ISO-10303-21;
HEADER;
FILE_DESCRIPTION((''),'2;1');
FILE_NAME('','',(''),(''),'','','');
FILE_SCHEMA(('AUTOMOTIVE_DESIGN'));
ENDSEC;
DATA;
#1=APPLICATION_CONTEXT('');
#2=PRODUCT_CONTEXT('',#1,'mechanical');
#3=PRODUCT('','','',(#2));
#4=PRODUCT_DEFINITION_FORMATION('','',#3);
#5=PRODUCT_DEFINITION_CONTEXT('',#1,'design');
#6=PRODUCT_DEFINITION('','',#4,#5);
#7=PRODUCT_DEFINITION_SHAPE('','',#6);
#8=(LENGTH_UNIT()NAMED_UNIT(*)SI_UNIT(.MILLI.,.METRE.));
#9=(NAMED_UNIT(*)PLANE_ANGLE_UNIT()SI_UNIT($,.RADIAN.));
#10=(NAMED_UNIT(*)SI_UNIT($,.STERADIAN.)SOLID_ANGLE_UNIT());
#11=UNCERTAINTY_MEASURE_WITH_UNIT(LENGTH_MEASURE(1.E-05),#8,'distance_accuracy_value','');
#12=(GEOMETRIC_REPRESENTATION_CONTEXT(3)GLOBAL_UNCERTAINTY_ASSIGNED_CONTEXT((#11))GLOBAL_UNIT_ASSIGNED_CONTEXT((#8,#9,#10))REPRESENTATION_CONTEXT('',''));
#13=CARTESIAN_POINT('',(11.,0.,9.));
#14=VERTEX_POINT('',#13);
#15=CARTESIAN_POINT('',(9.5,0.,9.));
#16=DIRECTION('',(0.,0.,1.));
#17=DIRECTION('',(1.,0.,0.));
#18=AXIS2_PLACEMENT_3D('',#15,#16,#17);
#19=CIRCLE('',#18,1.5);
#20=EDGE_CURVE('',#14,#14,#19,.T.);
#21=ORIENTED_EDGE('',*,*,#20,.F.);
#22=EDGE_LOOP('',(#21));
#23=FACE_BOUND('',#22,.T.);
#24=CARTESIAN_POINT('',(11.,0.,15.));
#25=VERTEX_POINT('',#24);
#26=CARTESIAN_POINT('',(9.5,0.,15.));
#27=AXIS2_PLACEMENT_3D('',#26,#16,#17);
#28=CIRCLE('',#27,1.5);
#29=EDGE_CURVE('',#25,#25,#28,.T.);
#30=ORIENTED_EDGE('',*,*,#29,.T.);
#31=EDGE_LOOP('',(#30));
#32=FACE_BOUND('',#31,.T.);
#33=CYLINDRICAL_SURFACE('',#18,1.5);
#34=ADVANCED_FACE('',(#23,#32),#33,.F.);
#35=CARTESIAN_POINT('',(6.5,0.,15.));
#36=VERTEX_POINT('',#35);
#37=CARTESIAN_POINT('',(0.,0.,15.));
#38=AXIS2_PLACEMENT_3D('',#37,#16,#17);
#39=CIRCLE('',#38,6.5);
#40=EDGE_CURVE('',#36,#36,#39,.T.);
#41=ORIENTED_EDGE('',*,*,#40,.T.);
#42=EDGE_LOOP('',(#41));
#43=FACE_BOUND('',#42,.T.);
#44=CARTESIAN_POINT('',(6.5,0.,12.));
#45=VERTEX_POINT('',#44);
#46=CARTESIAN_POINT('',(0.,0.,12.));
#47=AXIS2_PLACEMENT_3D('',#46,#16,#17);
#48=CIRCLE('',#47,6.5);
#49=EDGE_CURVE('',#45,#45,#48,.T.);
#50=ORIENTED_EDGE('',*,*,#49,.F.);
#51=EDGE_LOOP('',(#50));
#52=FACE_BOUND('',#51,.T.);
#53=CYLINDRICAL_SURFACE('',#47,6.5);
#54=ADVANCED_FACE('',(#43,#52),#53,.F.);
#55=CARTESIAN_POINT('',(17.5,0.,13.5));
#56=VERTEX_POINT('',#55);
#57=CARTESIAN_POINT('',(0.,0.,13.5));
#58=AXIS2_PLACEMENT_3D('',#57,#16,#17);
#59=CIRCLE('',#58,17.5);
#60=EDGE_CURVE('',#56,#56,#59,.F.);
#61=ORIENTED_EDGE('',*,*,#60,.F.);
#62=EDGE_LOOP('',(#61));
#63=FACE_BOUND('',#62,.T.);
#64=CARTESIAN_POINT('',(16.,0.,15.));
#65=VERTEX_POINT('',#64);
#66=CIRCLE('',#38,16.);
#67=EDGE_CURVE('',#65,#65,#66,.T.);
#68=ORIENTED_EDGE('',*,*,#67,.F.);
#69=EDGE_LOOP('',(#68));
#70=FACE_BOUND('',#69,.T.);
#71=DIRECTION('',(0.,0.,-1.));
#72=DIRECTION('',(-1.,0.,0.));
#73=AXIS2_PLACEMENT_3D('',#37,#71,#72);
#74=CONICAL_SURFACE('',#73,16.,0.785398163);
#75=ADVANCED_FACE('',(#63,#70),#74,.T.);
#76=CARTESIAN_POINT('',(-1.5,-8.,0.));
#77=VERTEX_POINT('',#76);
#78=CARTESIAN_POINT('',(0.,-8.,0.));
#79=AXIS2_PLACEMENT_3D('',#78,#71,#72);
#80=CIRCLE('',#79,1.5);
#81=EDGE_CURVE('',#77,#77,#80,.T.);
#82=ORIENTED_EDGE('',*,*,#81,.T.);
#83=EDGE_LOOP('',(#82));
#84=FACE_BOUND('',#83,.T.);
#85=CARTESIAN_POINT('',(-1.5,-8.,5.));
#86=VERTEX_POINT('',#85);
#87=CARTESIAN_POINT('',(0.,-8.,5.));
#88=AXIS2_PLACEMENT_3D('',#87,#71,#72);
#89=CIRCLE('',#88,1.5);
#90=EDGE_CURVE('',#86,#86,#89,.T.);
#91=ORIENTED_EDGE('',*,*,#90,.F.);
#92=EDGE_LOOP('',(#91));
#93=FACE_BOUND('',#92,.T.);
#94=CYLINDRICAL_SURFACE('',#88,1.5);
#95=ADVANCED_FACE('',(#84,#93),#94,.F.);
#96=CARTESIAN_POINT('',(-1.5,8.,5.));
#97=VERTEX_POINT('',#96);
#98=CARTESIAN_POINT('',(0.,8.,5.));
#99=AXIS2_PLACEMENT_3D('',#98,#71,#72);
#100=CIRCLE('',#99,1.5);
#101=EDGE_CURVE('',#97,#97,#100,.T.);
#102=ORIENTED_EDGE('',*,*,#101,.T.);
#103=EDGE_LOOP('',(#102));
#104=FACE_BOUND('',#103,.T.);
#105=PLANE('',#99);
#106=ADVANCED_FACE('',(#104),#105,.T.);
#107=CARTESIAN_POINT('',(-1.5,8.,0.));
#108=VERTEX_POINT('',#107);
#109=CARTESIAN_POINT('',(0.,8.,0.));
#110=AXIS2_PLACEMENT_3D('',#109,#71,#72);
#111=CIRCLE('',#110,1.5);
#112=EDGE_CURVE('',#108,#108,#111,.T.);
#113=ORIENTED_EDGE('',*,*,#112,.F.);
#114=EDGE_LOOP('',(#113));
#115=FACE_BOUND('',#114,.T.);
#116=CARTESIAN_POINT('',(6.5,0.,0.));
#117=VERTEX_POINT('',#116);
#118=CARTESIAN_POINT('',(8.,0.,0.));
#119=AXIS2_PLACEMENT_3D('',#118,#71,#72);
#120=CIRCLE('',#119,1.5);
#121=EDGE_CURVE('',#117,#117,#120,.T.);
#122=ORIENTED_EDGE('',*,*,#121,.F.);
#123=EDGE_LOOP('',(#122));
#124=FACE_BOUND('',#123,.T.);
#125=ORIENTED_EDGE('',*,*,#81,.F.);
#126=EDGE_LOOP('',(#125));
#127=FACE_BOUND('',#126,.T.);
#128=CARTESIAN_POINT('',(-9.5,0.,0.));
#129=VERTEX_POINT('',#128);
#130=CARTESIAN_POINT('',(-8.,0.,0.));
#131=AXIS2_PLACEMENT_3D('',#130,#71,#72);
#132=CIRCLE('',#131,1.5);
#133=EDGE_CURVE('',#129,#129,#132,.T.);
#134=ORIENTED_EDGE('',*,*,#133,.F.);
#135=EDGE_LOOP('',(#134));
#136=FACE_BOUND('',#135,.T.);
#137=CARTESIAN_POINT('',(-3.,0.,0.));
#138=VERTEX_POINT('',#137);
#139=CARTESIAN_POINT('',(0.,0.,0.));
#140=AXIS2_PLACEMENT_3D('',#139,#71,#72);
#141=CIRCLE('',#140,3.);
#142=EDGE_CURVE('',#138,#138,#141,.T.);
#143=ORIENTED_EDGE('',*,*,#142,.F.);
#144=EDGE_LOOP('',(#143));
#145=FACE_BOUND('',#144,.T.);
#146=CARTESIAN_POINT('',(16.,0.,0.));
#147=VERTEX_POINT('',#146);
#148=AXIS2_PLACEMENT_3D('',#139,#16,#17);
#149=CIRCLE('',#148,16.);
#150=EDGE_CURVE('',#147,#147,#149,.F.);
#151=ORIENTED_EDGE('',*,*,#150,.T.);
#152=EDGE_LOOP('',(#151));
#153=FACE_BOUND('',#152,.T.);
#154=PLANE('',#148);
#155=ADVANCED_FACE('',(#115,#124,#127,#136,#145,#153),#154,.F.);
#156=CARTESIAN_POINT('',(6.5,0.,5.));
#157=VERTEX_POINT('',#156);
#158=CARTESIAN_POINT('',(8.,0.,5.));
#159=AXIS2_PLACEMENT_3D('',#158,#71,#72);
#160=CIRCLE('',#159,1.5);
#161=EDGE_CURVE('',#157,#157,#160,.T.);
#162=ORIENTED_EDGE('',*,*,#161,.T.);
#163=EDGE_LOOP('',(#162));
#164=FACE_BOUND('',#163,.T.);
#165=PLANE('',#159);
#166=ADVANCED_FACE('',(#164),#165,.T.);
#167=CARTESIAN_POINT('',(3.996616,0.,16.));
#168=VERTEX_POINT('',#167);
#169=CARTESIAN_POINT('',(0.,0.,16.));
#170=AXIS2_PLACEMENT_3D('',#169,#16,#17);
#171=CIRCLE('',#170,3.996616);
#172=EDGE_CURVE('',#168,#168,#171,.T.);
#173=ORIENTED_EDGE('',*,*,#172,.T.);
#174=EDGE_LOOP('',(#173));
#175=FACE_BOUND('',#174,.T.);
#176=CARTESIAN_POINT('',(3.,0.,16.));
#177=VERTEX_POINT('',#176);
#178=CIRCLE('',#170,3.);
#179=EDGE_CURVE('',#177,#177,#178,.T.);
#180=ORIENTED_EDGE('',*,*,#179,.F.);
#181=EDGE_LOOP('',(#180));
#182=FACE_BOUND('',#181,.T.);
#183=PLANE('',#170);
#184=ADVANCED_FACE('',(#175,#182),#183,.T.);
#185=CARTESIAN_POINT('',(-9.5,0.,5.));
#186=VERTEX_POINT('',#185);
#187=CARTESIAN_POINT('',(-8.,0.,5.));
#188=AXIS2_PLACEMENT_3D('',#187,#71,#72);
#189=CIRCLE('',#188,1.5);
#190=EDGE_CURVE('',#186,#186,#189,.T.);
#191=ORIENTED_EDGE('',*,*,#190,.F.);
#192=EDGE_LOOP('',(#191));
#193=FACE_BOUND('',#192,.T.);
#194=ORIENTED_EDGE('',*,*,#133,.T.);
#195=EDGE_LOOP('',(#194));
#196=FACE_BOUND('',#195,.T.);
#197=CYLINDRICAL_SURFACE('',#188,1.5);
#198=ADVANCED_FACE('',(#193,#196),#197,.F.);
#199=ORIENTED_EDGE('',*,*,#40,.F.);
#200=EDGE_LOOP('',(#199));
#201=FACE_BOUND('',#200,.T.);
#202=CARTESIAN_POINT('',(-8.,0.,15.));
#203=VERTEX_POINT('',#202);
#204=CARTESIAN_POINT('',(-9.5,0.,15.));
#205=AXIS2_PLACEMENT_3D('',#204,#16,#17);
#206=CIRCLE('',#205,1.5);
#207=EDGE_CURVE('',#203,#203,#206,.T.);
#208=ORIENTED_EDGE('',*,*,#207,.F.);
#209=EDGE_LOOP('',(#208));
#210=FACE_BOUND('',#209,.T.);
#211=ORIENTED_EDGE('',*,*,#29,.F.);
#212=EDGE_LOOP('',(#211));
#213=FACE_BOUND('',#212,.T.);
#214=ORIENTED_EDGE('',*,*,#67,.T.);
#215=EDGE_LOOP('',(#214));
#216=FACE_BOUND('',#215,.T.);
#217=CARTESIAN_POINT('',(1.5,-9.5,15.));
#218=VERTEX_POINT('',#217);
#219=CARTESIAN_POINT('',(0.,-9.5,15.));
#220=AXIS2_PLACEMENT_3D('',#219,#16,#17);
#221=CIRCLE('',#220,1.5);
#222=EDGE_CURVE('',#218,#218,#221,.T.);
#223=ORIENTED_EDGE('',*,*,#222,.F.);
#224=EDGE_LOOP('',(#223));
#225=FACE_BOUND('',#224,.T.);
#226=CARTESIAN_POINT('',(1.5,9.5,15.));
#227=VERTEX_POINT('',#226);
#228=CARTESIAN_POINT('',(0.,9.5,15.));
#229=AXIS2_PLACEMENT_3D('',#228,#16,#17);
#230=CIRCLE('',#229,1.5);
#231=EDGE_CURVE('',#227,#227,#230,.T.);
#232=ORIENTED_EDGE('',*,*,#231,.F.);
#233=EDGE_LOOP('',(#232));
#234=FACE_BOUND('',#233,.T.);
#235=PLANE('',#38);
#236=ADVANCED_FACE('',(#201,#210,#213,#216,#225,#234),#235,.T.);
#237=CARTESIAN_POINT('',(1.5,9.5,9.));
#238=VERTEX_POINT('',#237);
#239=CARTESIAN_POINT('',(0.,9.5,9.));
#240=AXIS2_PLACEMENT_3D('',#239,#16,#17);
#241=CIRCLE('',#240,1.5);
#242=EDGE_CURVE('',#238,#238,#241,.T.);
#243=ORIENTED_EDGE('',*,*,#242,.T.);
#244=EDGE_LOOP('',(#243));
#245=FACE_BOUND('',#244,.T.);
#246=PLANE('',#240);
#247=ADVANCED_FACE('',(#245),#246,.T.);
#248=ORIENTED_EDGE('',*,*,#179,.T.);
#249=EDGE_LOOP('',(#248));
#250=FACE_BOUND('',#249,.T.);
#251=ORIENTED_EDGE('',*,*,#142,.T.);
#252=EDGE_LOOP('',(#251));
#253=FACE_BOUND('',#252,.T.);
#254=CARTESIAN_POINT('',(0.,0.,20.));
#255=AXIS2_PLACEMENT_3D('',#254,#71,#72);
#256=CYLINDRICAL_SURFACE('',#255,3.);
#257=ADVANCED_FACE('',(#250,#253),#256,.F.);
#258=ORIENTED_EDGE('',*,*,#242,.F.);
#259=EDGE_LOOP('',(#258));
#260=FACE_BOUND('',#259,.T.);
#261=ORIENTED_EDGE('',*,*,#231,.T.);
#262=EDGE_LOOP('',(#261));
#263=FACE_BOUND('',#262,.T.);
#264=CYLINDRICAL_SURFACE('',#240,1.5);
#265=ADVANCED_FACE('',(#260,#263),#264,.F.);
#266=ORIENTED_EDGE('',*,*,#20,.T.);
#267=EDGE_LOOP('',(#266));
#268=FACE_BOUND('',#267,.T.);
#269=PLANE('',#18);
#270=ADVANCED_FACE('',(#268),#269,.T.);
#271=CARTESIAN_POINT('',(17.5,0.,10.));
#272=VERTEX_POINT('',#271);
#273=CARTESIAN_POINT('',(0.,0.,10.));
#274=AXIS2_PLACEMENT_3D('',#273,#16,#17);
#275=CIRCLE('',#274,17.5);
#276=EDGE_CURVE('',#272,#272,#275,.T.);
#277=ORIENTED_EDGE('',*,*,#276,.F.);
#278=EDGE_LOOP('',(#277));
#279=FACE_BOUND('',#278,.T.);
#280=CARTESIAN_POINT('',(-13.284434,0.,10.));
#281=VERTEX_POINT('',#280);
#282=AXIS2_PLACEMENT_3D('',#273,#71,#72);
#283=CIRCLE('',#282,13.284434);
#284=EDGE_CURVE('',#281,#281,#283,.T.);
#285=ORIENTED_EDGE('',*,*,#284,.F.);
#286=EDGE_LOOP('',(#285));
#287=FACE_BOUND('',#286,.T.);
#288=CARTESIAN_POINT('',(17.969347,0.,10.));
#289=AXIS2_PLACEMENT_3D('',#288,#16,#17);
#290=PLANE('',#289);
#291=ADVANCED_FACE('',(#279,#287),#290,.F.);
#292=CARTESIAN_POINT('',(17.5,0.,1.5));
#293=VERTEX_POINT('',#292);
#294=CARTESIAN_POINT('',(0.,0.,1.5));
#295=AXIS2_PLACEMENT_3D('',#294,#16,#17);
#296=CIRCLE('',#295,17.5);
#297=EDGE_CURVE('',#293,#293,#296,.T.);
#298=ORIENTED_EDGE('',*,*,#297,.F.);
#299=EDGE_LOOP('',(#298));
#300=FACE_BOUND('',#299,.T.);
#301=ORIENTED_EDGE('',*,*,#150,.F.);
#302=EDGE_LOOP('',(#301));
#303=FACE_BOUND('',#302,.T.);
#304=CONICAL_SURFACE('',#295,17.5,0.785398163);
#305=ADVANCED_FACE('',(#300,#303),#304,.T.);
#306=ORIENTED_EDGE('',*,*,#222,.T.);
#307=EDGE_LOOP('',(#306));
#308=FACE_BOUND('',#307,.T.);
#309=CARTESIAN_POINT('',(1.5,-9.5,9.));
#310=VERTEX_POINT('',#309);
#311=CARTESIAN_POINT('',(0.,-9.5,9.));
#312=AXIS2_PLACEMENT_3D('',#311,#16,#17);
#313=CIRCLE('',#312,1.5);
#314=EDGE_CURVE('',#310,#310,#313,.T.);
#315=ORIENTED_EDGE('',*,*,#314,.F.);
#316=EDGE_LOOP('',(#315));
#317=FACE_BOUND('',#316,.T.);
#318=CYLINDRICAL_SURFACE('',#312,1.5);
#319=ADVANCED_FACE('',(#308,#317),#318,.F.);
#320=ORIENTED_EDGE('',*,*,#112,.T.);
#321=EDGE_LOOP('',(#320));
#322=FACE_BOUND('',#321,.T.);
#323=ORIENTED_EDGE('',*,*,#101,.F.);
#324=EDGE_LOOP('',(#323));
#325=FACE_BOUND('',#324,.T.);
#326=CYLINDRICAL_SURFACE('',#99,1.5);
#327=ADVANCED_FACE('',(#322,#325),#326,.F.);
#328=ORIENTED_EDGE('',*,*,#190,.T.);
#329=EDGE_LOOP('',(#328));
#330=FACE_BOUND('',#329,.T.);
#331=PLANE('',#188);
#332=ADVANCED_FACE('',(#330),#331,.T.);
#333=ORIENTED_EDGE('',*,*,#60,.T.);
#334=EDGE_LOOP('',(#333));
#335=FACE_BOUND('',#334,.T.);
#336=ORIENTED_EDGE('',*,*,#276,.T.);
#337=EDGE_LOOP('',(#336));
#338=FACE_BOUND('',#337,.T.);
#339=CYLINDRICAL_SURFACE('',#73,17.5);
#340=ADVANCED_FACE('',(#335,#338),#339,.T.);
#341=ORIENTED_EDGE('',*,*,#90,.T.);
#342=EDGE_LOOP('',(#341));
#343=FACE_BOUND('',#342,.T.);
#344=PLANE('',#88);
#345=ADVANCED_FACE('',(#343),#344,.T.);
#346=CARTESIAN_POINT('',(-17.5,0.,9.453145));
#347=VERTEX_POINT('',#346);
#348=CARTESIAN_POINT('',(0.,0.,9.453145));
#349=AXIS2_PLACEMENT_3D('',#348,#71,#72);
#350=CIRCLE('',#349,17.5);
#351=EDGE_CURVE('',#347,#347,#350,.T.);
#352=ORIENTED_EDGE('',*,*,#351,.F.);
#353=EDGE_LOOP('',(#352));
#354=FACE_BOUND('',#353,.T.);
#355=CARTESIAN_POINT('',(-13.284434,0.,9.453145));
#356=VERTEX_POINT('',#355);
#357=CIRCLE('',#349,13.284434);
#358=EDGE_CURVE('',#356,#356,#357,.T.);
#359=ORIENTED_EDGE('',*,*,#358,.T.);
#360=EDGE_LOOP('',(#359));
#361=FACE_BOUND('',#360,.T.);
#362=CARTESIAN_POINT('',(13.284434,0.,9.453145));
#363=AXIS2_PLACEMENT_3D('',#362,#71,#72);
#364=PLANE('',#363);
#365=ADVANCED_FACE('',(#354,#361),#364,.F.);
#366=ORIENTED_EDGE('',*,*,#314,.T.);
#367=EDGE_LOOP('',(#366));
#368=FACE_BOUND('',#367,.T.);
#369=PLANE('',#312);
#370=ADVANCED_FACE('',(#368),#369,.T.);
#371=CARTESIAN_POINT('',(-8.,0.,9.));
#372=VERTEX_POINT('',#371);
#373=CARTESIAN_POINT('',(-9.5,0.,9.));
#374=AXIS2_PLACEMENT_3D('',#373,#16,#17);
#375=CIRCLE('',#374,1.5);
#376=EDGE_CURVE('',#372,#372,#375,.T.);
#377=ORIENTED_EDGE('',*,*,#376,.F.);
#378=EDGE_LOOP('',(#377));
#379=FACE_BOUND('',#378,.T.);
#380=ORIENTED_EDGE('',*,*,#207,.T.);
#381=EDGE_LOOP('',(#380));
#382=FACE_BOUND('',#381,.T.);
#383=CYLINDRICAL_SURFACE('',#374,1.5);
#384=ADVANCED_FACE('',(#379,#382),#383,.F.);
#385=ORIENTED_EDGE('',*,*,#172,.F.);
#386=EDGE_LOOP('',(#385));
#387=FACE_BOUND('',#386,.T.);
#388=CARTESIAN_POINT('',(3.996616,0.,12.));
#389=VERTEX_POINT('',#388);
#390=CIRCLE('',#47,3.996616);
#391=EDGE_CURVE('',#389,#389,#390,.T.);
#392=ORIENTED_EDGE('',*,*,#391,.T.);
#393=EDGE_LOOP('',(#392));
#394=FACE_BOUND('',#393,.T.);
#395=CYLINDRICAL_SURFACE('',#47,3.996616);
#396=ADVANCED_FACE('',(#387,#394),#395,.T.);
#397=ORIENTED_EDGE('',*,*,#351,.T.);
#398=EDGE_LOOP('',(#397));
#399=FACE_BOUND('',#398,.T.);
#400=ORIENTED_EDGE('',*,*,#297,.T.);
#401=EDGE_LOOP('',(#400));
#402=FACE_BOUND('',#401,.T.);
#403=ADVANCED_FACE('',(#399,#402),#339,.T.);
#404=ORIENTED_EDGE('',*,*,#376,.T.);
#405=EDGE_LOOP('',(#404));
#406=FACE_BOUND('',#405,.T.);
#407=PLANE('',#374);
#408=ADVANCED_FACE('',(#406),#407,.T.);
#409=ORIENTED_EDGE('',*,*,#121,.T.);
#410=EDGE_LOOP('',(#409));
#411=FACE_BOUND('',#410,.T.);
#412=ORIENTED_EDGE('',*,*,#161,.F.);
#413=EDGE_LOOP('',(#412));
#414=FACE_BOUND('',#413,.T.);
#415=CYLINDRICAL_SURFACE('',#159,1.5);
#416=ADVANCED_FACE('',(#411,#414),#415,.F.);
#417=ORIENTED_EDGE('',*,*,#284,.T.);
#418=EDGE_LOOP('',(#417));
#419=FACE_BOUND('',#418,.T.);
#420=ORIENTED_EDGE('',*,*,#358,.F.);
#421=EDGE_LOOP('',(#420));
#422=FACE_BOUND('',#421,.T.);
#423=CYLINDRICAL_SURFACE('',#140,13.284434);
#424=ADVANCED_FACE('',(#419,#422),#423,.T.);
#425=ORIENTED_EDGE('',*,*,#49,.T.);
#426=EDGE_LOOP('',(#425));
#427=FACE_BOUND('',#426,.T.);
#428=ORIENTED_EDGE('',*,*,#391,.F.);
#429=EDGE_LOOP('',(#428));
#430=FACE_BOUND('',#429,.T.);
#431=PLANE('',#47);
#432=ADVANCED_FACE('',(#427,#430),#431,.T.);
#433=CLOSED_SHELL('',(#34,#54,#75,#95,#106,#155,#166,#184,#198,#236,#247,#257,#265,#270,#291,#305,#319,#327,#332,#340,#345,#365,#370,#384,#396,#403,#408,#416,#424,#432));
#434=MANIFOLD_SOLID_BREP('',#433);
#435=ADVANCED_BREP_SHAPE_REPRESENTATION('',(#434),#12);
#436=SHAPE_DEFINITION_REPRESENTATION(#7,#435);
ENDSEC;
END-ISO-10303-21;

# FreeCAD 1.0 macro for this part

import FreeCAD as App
import Part
import Sketcher
from FreeCAD import Vector
Q = App.Units.Quantity


def edges_at(feature, points):
    """Names of the edges that pass closest to the given points."""
    edges = feature.Shape.Edges
    near = lambda p: min(range(len(edges)), key=lambda i: edges[i].distToShape(Part.Vertex(*p))[0])
    return sorted({f"Edge{near(p) + 1}" for p in points})


def add_polygon(sketch, points):
    """Adds a closed chain of lines whose ends are joined by coincident constraints."""
    first, n = sketch.GeometryCount, len(points)
    for a, b in zip(points, points[1:] + points[:1]):
        sketch.addGeometry(Part.LineSegment(App.Vector(*a, 0), App.Vector(*b, 0)), False)
    for i in range(n):
        sketch.addConstraint(Sketcher.Constraint("Coincident", first + i, 2, first + (i + 1) % n, 1))

doc = App.newDocument("Part")
body = doc.addObject("PartDesign::Body", "Body")

# Sketch on XY plane
sketch1 = body.newObject("Sketcher::SketchObject", "Sketch")
sketch1.AttachmentSupport = (doc.getObject("XY_Plane"), [""])
sketch1.MapMode = "FlatFace"
sketch1.addGeometry(Part.Circle(Vector(0, 0, 0), Vector(0, 0, 1), 18), False)
sketch1.addConstraint([
    Sketcher.Constraint("Coincident", 0, 3, -1, 1),
    Sketcher.Constraint("Diameter", 0, Q("35 mm")),
])
pad1 = body.newObject("PartDesign::Pad", "Pad")
pad1.Profile = sketch1
pad1.Length = 15

# Sketch on XY plane
sketch2 = body.newObject("Sketcher::SketchObject", "Sketch001")
sketch2.AttachmentSupport = (doc.getObject("XY_Plane"), [""])
sketch2.MapMode = "FlatFace"
sketch2.addGeometry([
    Part.Circle(Vector(0, -8, 0), Vector(0, 0, 1), 1.5),
    Part.Circle(Vector(8, 0, 0), Vector(0, 0, 1), 1.5),
    Part.Circle(Vector(0, 8, 0), Vector(0, 0, 1), 1.5),
    Part.Circle(Vector(-8, 0, 0), Vector(0, 0, 1), 1.5),
], False)
sketch2.addConstraint([
    Sketcher.Constraint("Equal", 0, 1),
    Sketcher.Constraint("Equal", 1, 2),
    Sketcher.Constraint("Equal", 2, 3),
    Sketcher.Constraint("Symmetric", 0, 3, 2, 3, -1, 1),
    Sketcher.Constraint("Symmetric", 1, 3, 3, 3, -1, 1),
    Sketcher.Constraint("PointOnObject", 0, 3, -2),
    Sketcher.Constraint("PointOnObject", 1, 3, -1),
    Sketcher.Constraint("Diameter", 0, Q("3 mm")),
    Sketcher.Constraint("DistanceY", 0, 3, -1, 1, Q("8 mm")),
    Sketcher.Constraint("DistanceX", -1, 1, 1, 3, Q("8 mm")),
])
pocket1 = body.newObject("PartDesign::Pocket", "Pocket")
pocket1.Profile = sketch2
pocket1.Length = 5
pocket1.Reversed = True

# Sketch on XZ plane
sketch3 = body.newObject("Sketcher::SketchObject", "Sketch002")
sketch3.AttachmentSupport = (doc.getObject("XZ_Plane"), [""])
sketch3.MapMode = "FlatFace"
add_polygon(sketch3, [(13.3, 10), (18, 10), (18, 9.5), (13.3, 9.5)])  # lines 0-3
sketch3.addConstraint([
    Sketcher.Constraint("Horizontal", 0),
    Sketcher.Constraint("Vertical", 1),
    Sketcher.Constraint("Horizontal", 2),
    Sketcher.Constraint("Vertical", 3),
    Sketcher.Constraint("DistanceY", -1, 1, 0, 2, Q("10 mm")),
    Sketcher.Constraint("DistanceX", 0, 1, 0, 2, Q("4.684913 mm")),
    Sketcher.Constraint("DistanceY", 1, 2, 1, 1, Q("0.546855 mm")),
    Sketcher.Constraint("DistanceX", -1, 1, 0, 2, Q("17.969347 mm")),
])
groove = body.newObject("PartDesign::Groove", "Groove")
groove.Profile = sketch3
groove.ReferenceAxis = (sketch3, ["V_Axis"])
groove.Angle = 360

# Sketch on XY plane
sketch4 = body.newObject("Sketcher::SketchObject", "Sketch003")
sketch4.AttachmentSupport = (doc.getObject("XY_Plane"), [""])
sketch4.MapMode = "FlatFace"
sketch4.addGeometry(Part.Circle(Vector(0, 0, 0), Vector(0, 0, 1), 3), False)
sketch4.addConstraint([
    Sketcher.Constraint("Coincident", 0, 3, -1, 1),
    Sketcher.Constraint("Diameter", 0, Q("6 mm")),
])
pocket2 = body.newObject("PartDesign::Pocket", "Pocket001")
pocket2.Profile = sketch4
pocket2.Length = 20
pocket2.Reversed = True

# Sketch on XY plane
sketch5 = body.newObject("Sketcher::SketchObject", "Sketch004")
sketch5.AttachmentSupport = (doc.getObject("XY_Plane"), [""])
sketch5.MapMode = "FlatFace"
sketch5.AttachmentOffset = App.Placement(Vector(0, 0, 15), App.Rotation())
sketch5.addGeometry([
    Part.Circle(Vector(0, -9.5, 0), Vector(0, 0, 1), 1.5),
    Part.Circle(Vector(-9.5, 0, 0), Vector(0, 0, 1), 1.5),
    Part.Circle(Vector(0, 9.5, 0), Vector(0, 0, 1), 1.5),
    Part.Circle(Vector(9.5, 0, 0), Vector(0, 0, 1), 1.5),
], False)
sketch5.addConstraint([
    Sketcher.Constraint("Equal", 0, 1),
    Sketcher.Constraint("Equal", 1, 2),
    Sketcher.Constraint("Equal", 2, 3),
    Sketcher.Constraint("Symmetric", 0, 3, 2, 3, -1, 1),
    Sketcher.Constraint("Symmetric", 1, 3, 3, 3, -1, 1),
    Sketcher.Constraint("PointOnObject", 0, 3, -2),
    Sketcher.Constraint("PointOnObject", 1, 3, -1),
    Sketcher.Constraint("Diameter", 0, Q("3 mm")),
    Sketcher.Constraint("DistanceY", 0, 3, 2, 3, Q("19 mm")),
    Sketcher.Constraint("DistanceX", 1, 3, 3, 3, Q("19 mm")),
])
pocket3 = body.newObject("PartDesign::Pocket", "Pocket002")
pocket3.Profile = sketch5
pocket3.Length = 6
doc.recompute()

chamfer = body.newObject("PartDesign::Chamfer", "Chamfer")
chamfer.Base = (pocket3, edges_at(pocket3, [(-17.5, 0, 0), (-17.5, 0, 15)]))
chamfer.Size = 1.5

# Sketch on XY plane
sketch6 = body.newObject("Sketcher::SketchObject", "Sketch005")
sketch6.AttachmentSupport = (doc.getObject("XY_Plane"), [""])
sketch6.MapMode = "FlatFace"
sketch6.AttachmentOffset = App.Placement(Vector(0, 0, 15), App.Rotation())
sketch6.addGeometry([
    Part.Circle(Vector(0, 0, 0), Vector(0, 0, 1), 6.5),
    Part.Circle(Vector(0, 0, 0), Vector(0, 0, 1), 4),
], False)
sketch6.addConstraint([
    Sketcher.Constraint("Coincident", 0, 3, -1, 1),
    Sketcher.Constraint("Coincident", 1, 3, -1, 1),
    Sketcher.Constraint("Diameter", 0, Q("13 mm")),
    Sketcher.Constraint("Diameter", 1, Q("7.993232 mm")),
])
pocket4 = body.newObject("PartDesign::Pocket", "Pocket003")
pocket4.Profile = sketch6
pocket4.Length = 3

# Sketch on XY plane
sketch7 = body.newObject("Sketcher::SketchObject", "Sketch006")
sketch7.AttachmentSupport = (doc.getObject("XY_Plane"), [""])
sketch7.MapMode = "FlatFace"
sketch7.AttachmentOffset = App.Placement(Vector(0, 0, 15), App.Rotation())
sketch7.addGeometry([
    Part.Circle(Vector(0, 0, 0), Vector(0, 0, 1), 4),
    Part.Circle(Vector(0, 0, 0), Vector(0, 0, 1), 3),
], False)
sketch7.addConstraint([
    Sketcher.Constraint("Coincident", 0, 3, -1, 1),
    Sketcher.Constraint("Coincident", 1, 3, -1, 1),
    Sketcher.Constraint("Diameter", 1, Q("6 mm")),
    Sketcher.Constraint("Diameter", 0, Q("7.993232 mm")),
])
pad2 = body.newObject("PartDesign::Pad", "Pad001")
pad2.Profile = sketch7
pad2.Length = 1

doc.recompute()
